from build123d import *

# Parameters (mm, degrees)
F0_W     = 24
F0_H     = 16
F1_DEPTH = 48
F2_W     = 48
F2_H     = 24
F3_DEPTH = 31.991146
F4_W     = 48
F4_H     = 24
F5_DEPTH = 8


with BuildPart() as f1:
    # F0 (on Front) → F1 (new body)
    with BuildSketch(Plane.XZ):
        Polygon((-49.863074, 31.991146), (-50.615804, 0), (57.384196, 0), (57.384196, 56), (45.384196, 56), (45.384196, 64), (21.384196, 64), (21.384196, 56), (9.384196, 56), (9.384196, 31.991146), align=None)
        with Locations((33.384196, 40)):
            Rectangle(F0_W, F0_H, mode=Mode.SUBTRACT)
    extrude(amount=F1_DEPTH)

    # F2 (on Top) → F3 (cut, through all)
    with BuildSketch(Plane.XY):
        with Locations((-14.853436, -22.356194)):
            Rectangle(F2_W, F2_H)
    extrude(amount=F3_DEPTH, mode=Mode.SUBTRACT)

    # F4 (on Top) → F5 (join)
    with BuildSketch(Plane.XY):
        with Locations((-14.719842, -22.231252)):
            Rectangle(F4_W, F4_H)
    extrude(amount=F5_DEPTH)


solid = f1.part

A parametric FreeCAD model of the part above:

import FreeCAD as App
import Part
import Sketcher
from FreeCAD import Vector

doc = App.newDocument("Part")
body = doc.addObject("PartDesign::Body", "Body")

sketch1 = doc.addObject("Sketcher::SketchObject", "Sketch")
body.addObject(sketch1)
sketch1.AttachmentSupport = (doc.XZ_Plane, [""])
sketch1.MapMode = "FlatFace"
sketch1.addGeometry(Part.LineSegment(Vector(-50, 32, 0), Vector(-51, 0, 0)), False)
sketch1.addGeometry(Part.LineSegment(Vector(-51, 0, 0), Vector(57, 0, 0)), False)
sketch1.addGeometry(Part.LineSegment(Vector(57, 0, 0), Vector(57, 56, 0)), False)
sketch1.addGeometry(Part.LineSegment(Vector(57, 56, 0), Vector(45, 56, 0)), False)
sketch1.addGeometry(Part.LineSegment(Vector(45, 56, 0), Vector(45, 64, 0)), False)
sketch1.addGeometry(Part.LineSegment(Vector(45, 64, 0), Vector(21, 64, 0)), False)
sketch1.addGeometry(Part.LineSegment(Vector(21, 64, 0), Vector(21, 56, 0)), False)
sketch1.addGeometry(Part.LineSegment(Vector(21, 56, 0), Vector(9, 56, 0)), False)
sketch1.addGeometry(Part.LineSegment(Vector(9, 56, 0), Vector(9, 32, 0)), False)
sketch1.addGeometry(Part.LineSegment(Vector(9, 32, 0), Vector(-50, 32, 0)), False)
sketch1.addGeometry(Part.LineSegment(Vector(45, 32, 0), Vector(21, 32, 0)), False)
sketch1.addGeometry(Part.LineSegment(Vector(21, 32, 0), Vector(21, 48, 0)), False)
sketch1.addGeometry(Part.LineSegment(Vector(21, 48, 0), Vector(45, 48, 0)), False)
sketch1.addGeometry(Part.LineSegment(Vector(45, 48, 0), Vector(45, 32, 0)), False)
sketch1.addConstraint(Sketcher.Constraint("Coincident", 0, 2, 1, 1))
sketch1.addConstraint(Sketcher.Constraint("Coincident", 1, 2, 2, 1))
sketch1.addConstraint(Sketcher.Constraint("Coincident", 2, 2, 3, 1))
sketch1.addConstraint(Sketcher.Constraint("Coincident", 3, 2, 4, 1))
sketch1.addConstraint(Sketcher.Constraint("Coincident", 4, 2, 5, 1))
sketch1.addConstraint(Sketcher.Constraint("Coincident", 5, 2, 6, 1))
sketch1.addConstraint(Sketcher.Constraint("Coincident", 6, 2, 7, 1))
sketch1.addConstraint(Sketcher.Constraint("Coincident", 7, 2, 8, 1))
sketch1.addConstraint(Sketcher.Constraint("Coincident", 8, 2, 9, 1))
sketch1.addConstraint(Sketcher.Constraint("Coincident", 9, 2, 0, 1))
sketch1.addConstraint(Sketcher.Constraint("Coincident", 10, 2, 11, 1))
sketch1.addConstraint(Sketcher.Constraint("Coincident", 11, 2, 12, 1))
sketch1.addConstraint(Sketcher.Constraint("Coincident", 12, 2, 13, 1))
sketch1.addConstraint(Sketcher.Constraint("Coincident", 13, 2, 10, 1))
sketch1.addConstraint(Sketcher.Constraint("Horizontal", 1))
sketch1.addConstraint(Sketcher.Constraint("Vertical", 2))
sketch1.addConstraint(Sketcher.Constraint("Horizontal", 3))
sketch1.addConstraint(Sketcher.Constraint("Vertical", 4))
sketch1.addConstraint(Sketcher.Constraint("Horizontal", 5))
sketch1.addConstraint(Sketcher.Constraint("Vertical", 6))
sketch1.addConstraint(Sketcher.Constraint("Horizontal", 7))
sketch1.addConstraint(Sketcher.Constraint("Vertical", 8))
sketch1.addConstraint(Sketcher.Constraint("Horizontal", 9))
sketch1.addConstraint(Sketcher.Constraint("Horizontal", 10))
sketch1.addConstraint(Sketcher.Constraint("Vertical", 11))
sketch1.addConstraint(Sketcher.Constraint("Horizontal", 12))
sketch1.addConstraint(Sketcher.Constraint("Vertical", 13))
sketch1.addConstraint(Sketcher.Constraint("PointOnObject", 0, 2, -1))
sketch1.addConstraint(Sketcher.Constraint("Horizontal", 3, 2, 6, 2))
sketch1.addConstraint(Sketcher.Constraint("Vertical", 6, 2, 10, 2))
sketch1.addConstraint(Sketcher.Constraint("Vertical", 4, 2, 12, 2))
sketch1.addConstraint(Sketcher.Constraint("Equal", 3, 7))
sketch1.addConstraint(Sketcher.Constraint("DistanceX", 1, 1, 1, 2, 108.0))
sketch1.addConstraint(Sketcher.Constraint("DistanceX", 3, 2, 3, 1, 12.0))
sketch1.addConstraint(Sketcher.Constraint("DistanceX", 5, 2, 5, 1, 24.0))
sketch1.addConstraint(Sketcher.Constraint("DistanceY", 2, 1, 2, 2, 56.0))
sketch1.addConstraint(Sketcher.Constraint("DistanceY", 4, 1, 4, 2, 8.0))
sketch1.addConstraint(Sketcher.Constraint("DistanceY", 11, 1, 11, 2, 16.0))
sketch1.addConstraint(Sketcher.Constraint("Distance", 0, 32.0))
sketch1.addConstraint(Sketcher.Constraint("DistanceY", -1, 1, 10, 2, 32.0))
sketch1.addConstraint(Sketcher.Constraint("DistanceX", 9, 2, 9, 1, 59.24727))
sketch1.addConstraint(Sketcher.Constraint("DistanceX", 0, 2, -1, 1, 50.615804))
pad1 = doc.addObject("PartDesign::Pad", "Pad")
body.addObject(pad1)
pad1.Profile = sketch1
pad1.Length = 48

sketch2 = doc.addObject("Sketcher::SketchObject", "Sketch001")
body.addObject(sketch2)
sketch2.AttachmentSupport = (doc.XY_Plane, [""])
sketch2.MapMode = "FlatFace"
sketch2.addGeometry(Part.LineSegment(Vector(-39, -10, 0), Vector(-39, -34, 0)), False)
sketch2.addGeometry(Part.LineSegment(Vector(-39, -34, 0), Vector(9, -34, 0)), False)
sketch2.addGeometry(Part.LineSegment(Vector(9, -34, 0), Vector(9, -10, 0)), False)
sketch2.addGeometry(Part.LineSegment(Vector(9, -10, 0), Vector(-39, -10, 0)), False)
sketch2.addConstraint(Sketcher.Constraint("Coincident", 0, 2, 1, 1))
sketch2.addConstraint(Sketcher.Constraint("Coincident", 1, 2, 2, 1))
sketch2.addConstraint(Sketcher.Constraint("Coincident", 2, 2, 3, 1))
sketch2.addConstraint(Sketcher.Constraint("Coincident", 3, 2, 0, 1))
sketch2.addConstraint(Sketcher.Constraint("Vertical", 0))
sketch2.addConstraint(Sketcher.Constraint("Horizontal", 1))
sketch2.addConstraint(Sketcher.Constraint("Vertical", 2))
sketch2.addConstraint(Sketcher.Constraint("Horizontal", 3))
sketch2.addConstraint(Sketcher.Constraint("DistanceX", 1, 1, 1, 2, 48.0))
sketch2.addConstraint(Sketcher.Constraint("DistanceY", 0, 2, 0, 1, 24.0))
sketch2.addConstraint(Sketcher.Constraint("DistanceX", 0, 2, -1, 1, 38.853436))
sketch2.addConstraint(Sketcher.Constraint("DistanceY", 0, 2, -1, 1, 34.356194))
pocket1 = doc.addObject("PartDesign::Pocket", "Pocket")
body.addObject(pocket1)
pocket1.Profile = sketch2
pocket1.Type = "ThroughAll"
pocket1.Reversed = True

sketch3 = doc.addObject("Sketcher::SketchObject", "Sketch002")
body.addObject(sketch3)
sketch3.AttachmentSupport = (doc.XY_Plane, [""])
sketch3.MapMode = "FlatFace"
sketch3.addGeometry(Part.LineSegment(Vector(-39, -10, 0), Vector(-39, -34, 0)), False)
sketch3.addGeometry(Part.LineSegment(Vector(-39, -34, 0), Vector(9, -34, 0)), False)
sketch3.addGeometry(Part.LineSegment(Vector(9, -34, 0), Vector(9, -10, 0)), False)
sketch3.addGeometry(Part.LineSegment(Vector(9, -10, 0), Vector(-39, -10, 0)), False)
sketch3.addConstraint(Sketcher.Constraint("Coincident", 0, 2, 1, 1))
sketch3.addConstraint(Sketcher.Constraint("Coincident", 1, 2, 2, 1))
sketch3.addConstraint(Sketcher.Constraint("Coincident", 2, 2, 3, 1))
sketch3.addConstraint(Sketcher.Constraint("Coincident", 3, 2, 0, 1))
sketch3.addConstraint(Sketcher.Constraint("Vertical", 0))
sketch3.addConstraint(Sketcher.Constraint("Horizontal", 1))
sketch3.addConstraint(Sketcher.Constraint("Vertical", 2))
sketch3.addConstraint(Sketcher.Constraint("Horizontal", 3))
sketch3.addConstraint(Sketcher.Constraint("DistanceX", 1, 1, 1, 2, 48.0))
sketch3.addConstraint(Sketcher.Constraint("DistanceY", 0, 2, 0, 1, 24.0))
sketch3.addConstraint(Sketcher.Constraint("DistanceY", 0, 2, -1, 1, 34.231252))
sketch3.addConstraint(Sketcher.Constraint("DistanceX", 0, 2, -1, 1, 38.719842))
pad2 = doc.addObject("PartDesign::Pad", "Pad001")
body.addObject(pad2)
pad2.Profile = sketch3
pad2.Length = 8

doc.recompute()
